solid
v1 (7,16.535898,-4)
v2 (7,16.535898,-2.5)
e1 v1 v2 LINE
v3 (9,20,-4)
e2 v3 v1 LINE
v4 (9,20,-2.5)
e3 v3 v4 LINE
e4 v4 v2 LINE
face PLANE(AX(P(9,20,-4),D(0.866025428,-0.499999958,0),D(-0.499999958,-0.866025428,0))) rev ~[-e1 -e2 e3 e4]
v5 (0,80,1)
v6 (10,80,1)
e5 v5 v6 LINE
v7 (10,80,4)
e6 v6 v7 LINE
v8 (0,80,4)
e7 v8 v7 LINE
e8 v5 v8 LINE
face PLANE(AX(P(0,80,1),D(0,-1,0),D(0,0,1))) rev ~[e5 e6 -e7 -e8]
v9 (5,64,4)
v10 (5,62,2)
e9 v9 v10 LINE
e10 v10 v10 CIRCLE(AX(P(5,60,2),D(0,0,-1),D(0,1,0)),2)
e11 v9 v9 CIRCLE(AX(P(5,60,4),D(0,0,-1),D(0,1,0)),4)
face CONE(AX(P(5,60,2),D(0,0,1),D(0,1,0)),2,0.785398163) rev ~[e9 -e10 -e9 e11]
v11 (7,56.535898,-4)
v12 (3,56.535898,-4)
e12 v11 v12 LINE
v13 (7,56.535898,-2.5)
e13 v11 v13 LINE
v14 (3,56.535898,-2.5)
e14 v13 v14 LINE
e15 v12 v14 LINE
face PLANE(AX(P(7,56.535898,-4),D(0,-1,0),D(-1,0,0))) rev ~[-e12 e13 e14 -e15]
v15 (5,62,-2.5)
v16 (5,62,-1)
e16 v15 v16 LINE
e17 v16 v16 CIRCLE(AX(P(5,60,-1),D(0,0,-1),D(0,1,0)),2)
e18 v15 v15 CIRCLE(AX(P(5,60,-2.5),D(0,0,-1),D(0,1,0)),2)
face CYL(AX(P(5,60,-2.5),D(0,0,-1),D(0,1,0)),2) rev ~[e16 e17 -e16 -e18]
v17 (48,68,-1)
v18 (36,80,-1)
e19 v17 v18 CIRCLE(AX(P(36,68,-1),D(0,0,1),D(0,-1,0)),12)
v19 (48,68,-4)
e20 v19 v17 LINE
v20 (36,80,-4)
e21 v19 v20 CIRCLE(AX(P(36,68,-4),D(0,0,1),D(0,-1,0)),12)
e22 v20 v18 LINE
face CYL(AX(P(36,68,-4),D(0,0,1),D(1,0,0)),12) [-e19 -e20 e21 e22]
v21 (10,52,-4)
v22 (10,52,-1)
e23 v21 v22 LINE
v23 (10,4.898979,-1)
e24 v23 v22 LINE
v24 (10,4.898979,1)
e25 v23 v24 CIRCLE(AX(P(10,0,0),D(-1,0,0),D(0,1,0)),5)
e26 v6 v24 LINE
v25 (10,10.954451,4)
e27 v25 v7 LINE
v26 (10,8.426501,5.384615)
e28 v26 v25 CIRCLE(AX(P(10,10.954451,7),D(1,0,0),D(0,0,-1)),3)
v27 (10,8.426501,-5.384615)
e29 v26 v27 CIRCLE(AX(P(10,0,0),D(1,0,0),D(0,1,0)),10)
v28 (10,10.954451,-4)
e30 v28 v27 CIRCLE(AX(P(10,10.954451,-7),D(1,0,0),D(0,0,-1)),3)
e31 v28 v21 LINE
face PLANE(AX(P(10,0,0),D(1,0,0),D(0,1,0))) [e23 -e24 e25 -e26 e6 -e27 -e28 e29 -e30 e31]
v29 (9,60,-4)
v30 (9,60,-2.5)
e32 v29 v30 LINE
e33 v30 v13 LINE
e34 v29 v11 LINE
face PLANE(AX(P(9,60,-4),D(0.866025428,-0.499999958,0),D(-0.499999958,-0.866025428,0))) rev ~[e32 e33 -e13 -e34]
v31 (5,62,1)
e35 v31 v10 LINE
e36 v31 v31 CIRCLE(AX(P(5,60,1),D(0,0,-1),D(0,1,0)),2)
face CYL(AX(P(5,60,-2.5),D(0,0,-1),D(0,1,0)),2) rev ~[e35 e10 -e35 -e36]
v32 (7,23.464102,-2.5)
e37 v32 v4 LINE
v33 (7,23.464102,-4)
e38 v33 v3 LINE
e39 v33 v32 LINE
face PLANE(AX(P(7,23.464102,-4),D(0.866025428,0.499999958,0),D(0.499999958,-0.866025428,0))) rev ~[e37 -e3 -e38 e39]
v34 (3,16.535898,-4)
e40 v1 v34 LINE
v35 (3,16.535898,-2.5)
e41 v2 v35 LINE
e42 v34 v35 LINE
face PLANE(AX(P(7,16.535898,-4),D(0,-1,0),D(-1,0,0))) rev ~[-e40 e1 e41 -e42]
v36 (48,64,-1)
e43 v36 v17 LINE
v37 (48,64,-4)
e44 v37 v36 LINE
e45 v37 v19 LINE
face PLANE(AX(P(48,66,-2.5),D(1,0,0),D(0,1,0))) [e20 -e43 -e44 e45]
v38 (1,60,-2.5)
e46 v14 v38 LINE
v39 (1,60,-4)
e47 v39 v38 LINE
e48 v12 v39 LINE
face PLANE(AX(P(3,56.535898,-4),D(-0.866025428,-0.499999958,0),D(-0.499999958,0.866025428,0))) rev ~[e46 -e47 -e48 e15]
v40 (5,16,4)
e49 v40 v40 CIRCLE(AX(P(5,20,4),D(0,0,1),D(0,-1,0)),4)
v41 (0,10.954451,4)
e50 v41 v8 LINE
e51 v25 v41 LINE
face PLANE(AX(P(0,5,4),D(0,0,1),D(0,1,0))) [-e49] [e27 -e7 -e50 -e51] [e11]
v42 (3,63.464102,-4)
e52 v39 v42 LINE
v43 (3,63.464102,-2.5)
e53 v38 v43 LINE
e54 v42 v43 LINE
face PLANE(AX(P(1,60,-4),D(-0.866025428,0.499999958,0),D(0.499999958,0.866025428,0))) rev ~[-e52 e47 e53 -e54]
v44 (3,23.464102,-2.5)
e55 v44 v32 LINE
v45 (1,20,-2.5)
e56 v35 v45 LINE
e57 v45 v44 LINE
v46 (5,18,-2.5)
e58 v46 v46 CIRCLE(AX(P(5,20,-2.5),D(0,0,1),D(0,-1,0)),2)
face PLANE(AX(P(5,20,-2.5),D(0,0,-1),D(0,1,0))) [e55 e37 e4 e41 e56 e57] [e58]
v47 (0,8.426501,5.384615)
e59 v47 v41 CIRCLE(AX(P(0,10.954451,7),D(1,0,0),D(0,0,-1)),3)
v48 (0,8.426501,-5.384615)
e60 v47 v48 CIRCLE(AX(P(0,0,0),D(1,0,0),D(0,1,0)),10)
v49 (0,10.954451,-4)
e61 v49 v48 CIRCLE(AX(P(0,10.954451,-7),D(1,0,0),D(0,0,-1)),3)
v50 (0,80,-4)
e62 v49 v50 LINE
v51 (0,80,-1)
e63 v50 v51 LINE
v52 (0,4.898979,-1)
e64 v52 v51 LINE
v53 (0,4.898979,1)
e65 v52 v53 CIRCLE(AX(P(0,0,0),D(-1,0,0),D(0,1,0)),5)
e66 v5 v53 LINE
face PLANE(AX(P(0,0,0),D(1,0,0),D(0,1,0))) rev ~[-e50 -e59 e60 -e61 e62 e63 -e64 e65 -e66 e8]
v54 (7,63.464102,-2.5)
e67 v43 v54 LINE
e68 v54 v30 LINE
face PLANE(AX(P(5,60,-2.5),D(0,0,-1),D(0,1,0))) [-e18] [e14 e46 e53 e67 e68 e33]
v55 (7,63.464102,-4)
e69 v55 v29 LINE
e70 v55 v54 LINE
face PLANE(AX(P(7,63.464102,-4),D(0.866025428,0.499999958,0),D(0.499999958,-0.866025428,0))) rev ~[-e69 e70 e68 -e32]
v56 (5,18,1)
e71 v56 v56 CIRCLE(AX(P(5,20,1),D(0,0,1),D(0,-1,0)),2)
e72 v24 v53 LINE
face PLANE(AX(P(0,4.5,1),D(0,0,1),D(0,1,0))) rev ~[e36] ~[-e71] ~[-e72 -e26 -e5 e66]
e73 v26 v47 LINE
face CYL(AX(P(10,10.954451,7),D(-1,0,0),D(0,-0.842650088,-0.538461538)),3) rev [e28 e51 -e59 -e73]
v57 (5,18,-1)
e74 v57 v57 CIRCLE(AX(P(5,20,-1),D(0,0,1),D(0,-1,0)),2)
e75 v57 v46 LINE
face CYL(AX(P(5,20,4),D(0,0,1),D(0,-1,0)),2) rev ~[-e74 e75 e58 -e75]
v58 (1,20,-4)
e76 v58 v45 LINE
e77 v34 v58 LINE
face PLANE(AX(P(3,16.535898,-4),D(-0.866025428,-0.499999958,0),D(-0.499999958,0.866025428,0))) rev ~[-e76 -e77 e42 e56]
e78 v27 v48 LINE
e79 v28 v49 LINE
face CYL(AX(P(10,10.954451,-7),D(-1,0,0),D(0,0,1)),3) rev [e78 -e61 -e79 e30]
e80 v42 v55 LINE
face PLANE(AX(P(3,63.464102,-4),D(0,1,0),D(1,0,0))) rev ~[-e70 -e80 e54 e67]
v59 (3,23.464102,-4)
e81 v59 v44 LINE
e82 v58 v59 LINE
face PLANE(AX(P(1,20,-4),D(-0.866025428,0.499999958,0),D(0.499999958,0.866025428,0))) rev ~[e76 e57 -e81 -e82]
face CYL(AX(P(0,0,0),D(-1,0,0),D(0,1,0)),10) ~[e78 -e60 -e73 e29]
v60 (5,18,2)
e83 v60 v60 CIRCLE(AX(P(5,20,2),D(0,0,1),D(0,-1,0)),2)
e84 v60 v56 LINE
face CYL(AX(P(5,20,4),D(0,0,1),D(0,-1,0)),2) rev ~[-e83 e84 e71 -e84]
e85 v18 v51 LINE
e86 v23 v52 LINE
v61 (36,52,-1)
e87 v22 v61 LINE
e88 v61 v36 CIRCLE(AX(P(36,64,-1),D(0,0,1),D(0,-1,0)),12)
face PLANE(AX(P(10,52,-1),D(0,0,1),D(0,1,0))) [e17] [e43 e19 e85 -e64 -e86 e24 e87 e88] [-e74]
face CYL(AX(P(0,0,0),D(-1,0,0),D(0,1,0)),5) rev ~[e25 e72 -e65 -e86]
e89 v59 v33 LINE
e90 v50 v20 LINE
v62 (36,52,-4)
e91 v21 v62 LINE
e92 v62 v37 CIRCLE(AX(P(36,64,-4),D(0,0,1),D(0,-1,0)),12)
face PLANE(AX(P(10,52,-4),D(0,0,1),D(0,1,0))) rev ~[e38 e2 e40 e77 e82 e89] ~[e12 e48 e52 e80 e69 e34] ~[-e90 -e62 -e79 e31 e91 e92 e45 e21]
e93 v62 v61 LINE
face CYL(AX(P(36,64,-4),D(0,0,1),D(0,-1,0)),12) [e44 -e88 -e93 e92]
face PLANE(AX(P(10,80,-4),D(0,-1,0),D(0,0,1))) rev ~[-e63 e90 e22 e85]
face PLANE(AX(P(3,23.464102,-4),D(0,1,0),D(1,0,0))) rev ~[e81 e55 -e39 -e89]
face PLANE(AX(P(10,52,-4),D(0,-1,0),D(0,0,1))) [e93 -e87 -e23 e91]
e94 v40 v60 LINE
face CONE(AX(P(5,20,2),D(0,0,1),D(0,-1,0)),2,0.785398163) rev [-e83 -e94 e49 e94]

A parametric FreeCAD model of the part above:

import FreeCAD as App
import Part
import Sketcher
Q = App.Units.Quantity


def edges_at(feature, points):
    """Names of the edges that pass closest to the given points."""
    edges = feature.Shape.Edges
    near = lambda p: min(range(len(edges)), key=lambda i: edges[i].distToShape(Part.Vertex(*p))[0])
    return sorted({f"Edge{near(p) + 1}" for p in points})


def add_polygon(sketch, points):
    """Adds a closed chain of lines whose ends are joined by coincident constraints."""
    first, n = sketch.GeometryCount, len(points)
    for a, b in zip(points, points[1:] + points[:1]):
        sketch.addGeometry(Part.LineSegment(App.Vector(*a, 0), App.Vector(*b, 0)), False)
    for i in range(n):
        sketch.addConstraint(Sketcher.Constraint("Coincident", first + i, 2, first + (i + 1) % n, 1))

doc = App.newDocument("Part")
body = doc.addObject("PartDesign::Body", "Body")

sketch1 = body.newObject("Sketcher::SketchObject", "Sketch")
sketch1.AttachmentSupport = (doc.getObject("YZ_Plane"), [""])
sketch1.MapMode = "FlatFace"
sketch1.addGeometry(Part.Circle(App.Vector(0, 0, 0), App.Vector(0, 0, 1), 10), False)
sketch1.addConstraint([
    Sketcher.Constraint("Coincident", 0, 3, -1, 1),
    Sketcher.Constraint("Diameter", 0, Q("20 mm")),
])
pad1 = body.newObject("PartDesign::Pad", "Pad")
pad1.Profile = sketch1
pad1.Length = 10

sketch2 = body.newObject("Sketcher::SketchObject", "Sketch001")
sketch2.AttachmentSupport = (doc.getObject("YZ_Plane"), [""])
sketch2.MapMode = "FlatFace"
sketch2.addGeometry(Part.Circle(App.Vector(0, 0, 0), App.Vector(0, 0, 1), 10), False)
sketch2.addConstraint([
    Sketcher.Constraint("Coincident", 0, 3, -1, 1),
    Sketcher.Constraint("Diameter", 0, Q("20 mm")),
])
pocket1 = body.newObject("PartDesign::Pocket", "Pocket")
pocket1.Profile = sketch2
pocket1.Type = "ThroughAll"

sketch3 = body.newObject("Sketcher::SketchObject", "Sketch002")
sketch3.AttachmentSupport = (doc.getObject("YZ_Plane"), [""])
sketch3.MapMode = "FlatFace"
sketch3.addGeometry(Part.Circle(App.Vector(0, 0, 0), App.Vector(0, 0, 1), 5), False)
sketch3.addConstraint([
    Sketcher.Constraint("Coincident", 0, 3, -1, 1),
    Sketcher.Constraint("Diameter", 0, Q("10 mm")),
])
pocket2 = body.newObject("PartDesign::Pocket", "Pocket001")
pocket2.Profile = sketch3
pocket2.Length = 11
pocket2.Reversed = True

sketch4 = body.newObject("Sketcher::SketchObject", "Sketch003")
sketch4.AttachmentSupport = (doc.getObject("YZ_Plane"), [""])
sketch4.MapMode = "FlatFace"
add_polygon(sketch4, [(5, 4), (5, 1), (80, 1), (80, 4)])
add_polygon(sketch4, [(5, -1), (5, -4), (80, -4), (80, -1)])
sketch4.addConstraint([
    Sketcher.Constraint("Vertical", 0),
    Sketcher.Constraint("Horizontal", 1),
    Sketcher.Constraint("Vertical", 2),
    Sketcher.Constraint("Horizontal", 3),
    Sketcher.Constraint("Vertical", 4),
    Sketcher.Constraint("Horizontal", 5),
    Sketcher.Constraint("Vertical", 6),
    Sketcher.Constraint("Horizontal", 7),
    Sketcher.Constraint("Symmetric", 3, 2, 4, 2, -1),
    Sketcher.Constraint("Symmetric", 1, 2, 6, 2, -1),
    Sketcher.Constraint("DistanceX", 1, 1, 1, 2, Q("75 mm")),
    Sketcher.Constraint("DistanceY", 0, 2, 0, 1, Q("3 mm")),
    Sketcher.Constraint("DistanceX", -1, 1, 0, 2, Q("5 mm")),
    Sketcher.Constraint("DistanceY", -1, 1, 0, 2, Q("1 mm")),
])
pad2 = body.newObject("PartDesign::Pad", "Pad001")
pad2.Profile = sketch4
pad2.Length = 10

sketch5 = body.newObject("Sketcher::SketchObject", "Sketch004")
sketch5.AttachmentSupport = (doc.getObject("YZ_Plane"), [""])
sketch5.MapMode = "FlatFace"
add_polygon(sketch5, [(4.5, -1), (4.5, 1), (10, 1), (10, -1)])
sketch5.addConstraint([
    Sketcher.Constraint("Vertical", 0),
    Sketcher.Constraint("Horizontal", 1),
    Sketcher.Constraint("Vertical", 2),
    Sketcher.Constraint("Horizontal", 3),
    Sketcher.Constraint("DistanceY", 0, 1, 0, 2, Q("2 mm")),
    Sketcher.Constraint("DistanceX", 1, 1, 1, 2, Q("5.5 mm")),
    Sketcher.Constraint("DistanceY", -1, 1, 0, 2, Q("1 mm")),
    Sketcher.Constraint("DistanceX", -1, 1, 1, 2, Q("10 mm")),
])
pocket3 = body.newObject("PartDesign::Pocket", "Pocket002")
pocket3.Profile = sketch5
pocket3.Length = 10
pocket3.Reversed = True
doc.recompute()

fillet = body.newObject("PartDesign::Fillet", "Fillet")
fillet.Base = (pocket3, edges_at(pocket3, [(5, 9.165, -4)]))
fillet.Radius = 3
doc.recompute()

fillet2 = body.newObject("PartDesign::Fillet", "Fillet001")
fillet2.Base = (fillet, edges_at(fillet, [(5, 9.165, 4)]))
fillet2.Radius = 3

sketch6 = body.newObject("Sketcher::SketchObject", "Sketch005")
sketch6.AttachmentSupport = (doc.getObject("XY_Plane"), [""])
sketch6.MapMode = "FlatFace"
sketch6.AttachmentOffset = App.Placement(App.Vector(0, 0, -4), App.Rotation())
add_polygon(sketch6, [(3, 23.5), (7, 23.5), (9, 20), (7, 16.5), (3, 16.5), (1, 20)])
add_polygon(sketch6, [(3, 63.5), (7, 63.5), (9, 60), (7, 56.5), (3, 56.5), (1, 60)])
sketch6.addConstraint([
    Sketcher.Constraint("Horizontal", 0),
    Sketcher.Constraint("Horizontal", 3),
    Sketcher.Constraint("Horizontal", 6),
    Sketcher.Constraint("Horizontal", 9),
    Sketcher.Constraint("Parallel", 1, 4),
    Sketcher.Constraint("Parallel", 2, 5),
    Sketcher.Constraint("Parallel", 4, 7),
    Sketcher.Constraint("Parallel", 5, 8),
    Sketcher.Constraint("Parallel", 7, 10),
    Sketcher.Constraint("Parallel", 8, 11),
    Sketcher.Constraint("Horizontal", 1, 2, 4, 2),
    Sketcher.Constraint("Horizontal", 7, 2, 10, 2),
    Sketcher.Constraint("Vertical", 0, 2, 2, 2),
    Sketcher.Constraint("Vertical", 3, 2, 5, 2),
    Sketcher.Constraint("Vertical", 2, 2, 6, 2),
    Sketcher.Constraint("Vertical", 1, 2, 7, 2),
    Sketcher.Constraint("Vertical", 6, 2, 8, 2),
    Sketcher.Constraint("Vertical", 5, 2, 9, 2),
    Sketcher.Constraint("DistanceX", 0, 1, 0, 2, Q("4 mm")),
    Sketcher.Constraint("Angle", 1, Q("-60.000003 deg")),
    Sketcher.Constraint("Distance", 1, Q("4 mm")),
    Sketcher.Constraint("DistanceX", -1, 1, 0, 2, Q("7 mm")),
    Sketcher.Constraint("DistanceY", -1, 1, 1, 2, Q("20 mm")),
    Sketcher.Constraint("DistanceY", -1, 1, 7, 2, Q("60 mm")),
])
pocket4 = body.newObject("PartDesign::Pocket", "Pocket003")
pocket4.Profile = sketch6
pocket4.Length = 1.5
pocket4.Reversed = True

sketch7 = body.newObject("Sketcher::SketchObject", "Sketch006")
sketch7.AttachmentSupport = (doc.getObject("XY_Plane"), [""])
sketch7.MapMode = "FlatFace"
sketch7.AttachmentOffset = App.Placement(App.Vector(0, 0, 4), App.Rotation())
sketch7.addGeometry(Part.Circle(App.Vector(5, 20, 0), App.Vector(0, 0, 1), 2), False)
sketch7.addConstraint([
    Sketcher.Constraint("Diameter", 0, Q("4 mm")),
    Sketcher.Constraint("DistanceX", -1, 1, 0, 3, Q("5 mm")),
    Sketcher.Constraint("DistanceY", -1, 1, 0, 3, Q("20 mm")),
])
pocket5 = body.newObject("PartDesign::Pocket", "Pocket004")
pocket5.Profile = sketch7
pocket5.Length = 7
doc.recompute()

chamfer = body.newObject("PartDesign::Chamfer", "Chamfer")
chamfer.Base = (pocket5, edges_at(pocket5, [(5, 22, 4)]))
chamfer.Size = 2

sketch8 = body.newObject("Sketcher::SketchObject", "Sketch007")
sketch8.AttachmentSupport = (doc.getObject("XY_Plane"), [""])
sketch8.MapMode = "FlatFace"
sketch8.AttachmentOffset = App.Placement(App.Vector(0, 0, -2.5), App.Rotation())
sketch8.addGeometry(Part.Circle(App.Vector(5, 60, 0), App.Vector(0, 0, 1), 2), False)
sketch8.addConstraint([
    Sketcher.Constraint("Diameter", 0, Q("4 mm")),
    Sketcher.Constraint("DistanceX", -1, 1, 0, 3, Q("5 mm")),
    Sketcher.Constraint("DistanceY", -1, 1, 0, 3, Q("60 mm")),
])
pocket6 = body.newObject("PartDesign::Pocket", "Pocket005")
pocket6.Profile = sketch8
pocket6.Length = 7
pocket6.Reversed = True
doc.recompute()

chamfer2 = body.newObject("PartDesign::Chamfer", "Chamfer001")
chamfer2.Base = (pocket6, edges_at(pocket6, [(5, 58, 4)]))
chamfer2.Size = 2

sketch9 = body.newObject("Sketcher::SketchObject", "Sketch008")
sketch9.AttachmentSupport = (doc.getObject("YZ_Plane"), [""])
sketch9.MapMode = "FlatFace"
sketch9.AttachmentOffset = App.Placement(App.Vector(0, 0, 10), App.Rotation())
add_polygon(sketch9, [(52, -1), (52, -4), (80, -4), (80, -1)])
sketch9.addConstraint([
    Sketcher.Constraint("Vertical", 0),
    Sketcher.Constraint("Horizontal", 1),
    Sketcher.Constraint("Vertical", 2),
    Sketcher.Constraint("Horizontal", 3),
    Sketcher.Constraint("DistanceX", 1, 1, 1, 2, Q("28 mm")),
    Sketcher.Constraint("DistanceY", 0, 2, 0, 1, Q("3 mm")),
    Sketcher.Constraint("DistanceX", -1, 1, 0, 2, Q("52 mm")),
    Sketcher.Constraint("DistanceY", 0, 2, -1, 1, Q("4 mm")),
])
pad3 = body.newObject("PartDesign::Pad", "Pad002")
pad3.Profile = sketch9
pad3.Length = 38
doc.recompute()

fillet3 = body.newObject("PartDesign::Fillet", "Fillet002")
fillet3.Base = (pad3, edges_at(pad3, [(48, 52, -2.5), (48, 80, -2.5)]))
fillet3.Radius = 12

doc.recompute()
